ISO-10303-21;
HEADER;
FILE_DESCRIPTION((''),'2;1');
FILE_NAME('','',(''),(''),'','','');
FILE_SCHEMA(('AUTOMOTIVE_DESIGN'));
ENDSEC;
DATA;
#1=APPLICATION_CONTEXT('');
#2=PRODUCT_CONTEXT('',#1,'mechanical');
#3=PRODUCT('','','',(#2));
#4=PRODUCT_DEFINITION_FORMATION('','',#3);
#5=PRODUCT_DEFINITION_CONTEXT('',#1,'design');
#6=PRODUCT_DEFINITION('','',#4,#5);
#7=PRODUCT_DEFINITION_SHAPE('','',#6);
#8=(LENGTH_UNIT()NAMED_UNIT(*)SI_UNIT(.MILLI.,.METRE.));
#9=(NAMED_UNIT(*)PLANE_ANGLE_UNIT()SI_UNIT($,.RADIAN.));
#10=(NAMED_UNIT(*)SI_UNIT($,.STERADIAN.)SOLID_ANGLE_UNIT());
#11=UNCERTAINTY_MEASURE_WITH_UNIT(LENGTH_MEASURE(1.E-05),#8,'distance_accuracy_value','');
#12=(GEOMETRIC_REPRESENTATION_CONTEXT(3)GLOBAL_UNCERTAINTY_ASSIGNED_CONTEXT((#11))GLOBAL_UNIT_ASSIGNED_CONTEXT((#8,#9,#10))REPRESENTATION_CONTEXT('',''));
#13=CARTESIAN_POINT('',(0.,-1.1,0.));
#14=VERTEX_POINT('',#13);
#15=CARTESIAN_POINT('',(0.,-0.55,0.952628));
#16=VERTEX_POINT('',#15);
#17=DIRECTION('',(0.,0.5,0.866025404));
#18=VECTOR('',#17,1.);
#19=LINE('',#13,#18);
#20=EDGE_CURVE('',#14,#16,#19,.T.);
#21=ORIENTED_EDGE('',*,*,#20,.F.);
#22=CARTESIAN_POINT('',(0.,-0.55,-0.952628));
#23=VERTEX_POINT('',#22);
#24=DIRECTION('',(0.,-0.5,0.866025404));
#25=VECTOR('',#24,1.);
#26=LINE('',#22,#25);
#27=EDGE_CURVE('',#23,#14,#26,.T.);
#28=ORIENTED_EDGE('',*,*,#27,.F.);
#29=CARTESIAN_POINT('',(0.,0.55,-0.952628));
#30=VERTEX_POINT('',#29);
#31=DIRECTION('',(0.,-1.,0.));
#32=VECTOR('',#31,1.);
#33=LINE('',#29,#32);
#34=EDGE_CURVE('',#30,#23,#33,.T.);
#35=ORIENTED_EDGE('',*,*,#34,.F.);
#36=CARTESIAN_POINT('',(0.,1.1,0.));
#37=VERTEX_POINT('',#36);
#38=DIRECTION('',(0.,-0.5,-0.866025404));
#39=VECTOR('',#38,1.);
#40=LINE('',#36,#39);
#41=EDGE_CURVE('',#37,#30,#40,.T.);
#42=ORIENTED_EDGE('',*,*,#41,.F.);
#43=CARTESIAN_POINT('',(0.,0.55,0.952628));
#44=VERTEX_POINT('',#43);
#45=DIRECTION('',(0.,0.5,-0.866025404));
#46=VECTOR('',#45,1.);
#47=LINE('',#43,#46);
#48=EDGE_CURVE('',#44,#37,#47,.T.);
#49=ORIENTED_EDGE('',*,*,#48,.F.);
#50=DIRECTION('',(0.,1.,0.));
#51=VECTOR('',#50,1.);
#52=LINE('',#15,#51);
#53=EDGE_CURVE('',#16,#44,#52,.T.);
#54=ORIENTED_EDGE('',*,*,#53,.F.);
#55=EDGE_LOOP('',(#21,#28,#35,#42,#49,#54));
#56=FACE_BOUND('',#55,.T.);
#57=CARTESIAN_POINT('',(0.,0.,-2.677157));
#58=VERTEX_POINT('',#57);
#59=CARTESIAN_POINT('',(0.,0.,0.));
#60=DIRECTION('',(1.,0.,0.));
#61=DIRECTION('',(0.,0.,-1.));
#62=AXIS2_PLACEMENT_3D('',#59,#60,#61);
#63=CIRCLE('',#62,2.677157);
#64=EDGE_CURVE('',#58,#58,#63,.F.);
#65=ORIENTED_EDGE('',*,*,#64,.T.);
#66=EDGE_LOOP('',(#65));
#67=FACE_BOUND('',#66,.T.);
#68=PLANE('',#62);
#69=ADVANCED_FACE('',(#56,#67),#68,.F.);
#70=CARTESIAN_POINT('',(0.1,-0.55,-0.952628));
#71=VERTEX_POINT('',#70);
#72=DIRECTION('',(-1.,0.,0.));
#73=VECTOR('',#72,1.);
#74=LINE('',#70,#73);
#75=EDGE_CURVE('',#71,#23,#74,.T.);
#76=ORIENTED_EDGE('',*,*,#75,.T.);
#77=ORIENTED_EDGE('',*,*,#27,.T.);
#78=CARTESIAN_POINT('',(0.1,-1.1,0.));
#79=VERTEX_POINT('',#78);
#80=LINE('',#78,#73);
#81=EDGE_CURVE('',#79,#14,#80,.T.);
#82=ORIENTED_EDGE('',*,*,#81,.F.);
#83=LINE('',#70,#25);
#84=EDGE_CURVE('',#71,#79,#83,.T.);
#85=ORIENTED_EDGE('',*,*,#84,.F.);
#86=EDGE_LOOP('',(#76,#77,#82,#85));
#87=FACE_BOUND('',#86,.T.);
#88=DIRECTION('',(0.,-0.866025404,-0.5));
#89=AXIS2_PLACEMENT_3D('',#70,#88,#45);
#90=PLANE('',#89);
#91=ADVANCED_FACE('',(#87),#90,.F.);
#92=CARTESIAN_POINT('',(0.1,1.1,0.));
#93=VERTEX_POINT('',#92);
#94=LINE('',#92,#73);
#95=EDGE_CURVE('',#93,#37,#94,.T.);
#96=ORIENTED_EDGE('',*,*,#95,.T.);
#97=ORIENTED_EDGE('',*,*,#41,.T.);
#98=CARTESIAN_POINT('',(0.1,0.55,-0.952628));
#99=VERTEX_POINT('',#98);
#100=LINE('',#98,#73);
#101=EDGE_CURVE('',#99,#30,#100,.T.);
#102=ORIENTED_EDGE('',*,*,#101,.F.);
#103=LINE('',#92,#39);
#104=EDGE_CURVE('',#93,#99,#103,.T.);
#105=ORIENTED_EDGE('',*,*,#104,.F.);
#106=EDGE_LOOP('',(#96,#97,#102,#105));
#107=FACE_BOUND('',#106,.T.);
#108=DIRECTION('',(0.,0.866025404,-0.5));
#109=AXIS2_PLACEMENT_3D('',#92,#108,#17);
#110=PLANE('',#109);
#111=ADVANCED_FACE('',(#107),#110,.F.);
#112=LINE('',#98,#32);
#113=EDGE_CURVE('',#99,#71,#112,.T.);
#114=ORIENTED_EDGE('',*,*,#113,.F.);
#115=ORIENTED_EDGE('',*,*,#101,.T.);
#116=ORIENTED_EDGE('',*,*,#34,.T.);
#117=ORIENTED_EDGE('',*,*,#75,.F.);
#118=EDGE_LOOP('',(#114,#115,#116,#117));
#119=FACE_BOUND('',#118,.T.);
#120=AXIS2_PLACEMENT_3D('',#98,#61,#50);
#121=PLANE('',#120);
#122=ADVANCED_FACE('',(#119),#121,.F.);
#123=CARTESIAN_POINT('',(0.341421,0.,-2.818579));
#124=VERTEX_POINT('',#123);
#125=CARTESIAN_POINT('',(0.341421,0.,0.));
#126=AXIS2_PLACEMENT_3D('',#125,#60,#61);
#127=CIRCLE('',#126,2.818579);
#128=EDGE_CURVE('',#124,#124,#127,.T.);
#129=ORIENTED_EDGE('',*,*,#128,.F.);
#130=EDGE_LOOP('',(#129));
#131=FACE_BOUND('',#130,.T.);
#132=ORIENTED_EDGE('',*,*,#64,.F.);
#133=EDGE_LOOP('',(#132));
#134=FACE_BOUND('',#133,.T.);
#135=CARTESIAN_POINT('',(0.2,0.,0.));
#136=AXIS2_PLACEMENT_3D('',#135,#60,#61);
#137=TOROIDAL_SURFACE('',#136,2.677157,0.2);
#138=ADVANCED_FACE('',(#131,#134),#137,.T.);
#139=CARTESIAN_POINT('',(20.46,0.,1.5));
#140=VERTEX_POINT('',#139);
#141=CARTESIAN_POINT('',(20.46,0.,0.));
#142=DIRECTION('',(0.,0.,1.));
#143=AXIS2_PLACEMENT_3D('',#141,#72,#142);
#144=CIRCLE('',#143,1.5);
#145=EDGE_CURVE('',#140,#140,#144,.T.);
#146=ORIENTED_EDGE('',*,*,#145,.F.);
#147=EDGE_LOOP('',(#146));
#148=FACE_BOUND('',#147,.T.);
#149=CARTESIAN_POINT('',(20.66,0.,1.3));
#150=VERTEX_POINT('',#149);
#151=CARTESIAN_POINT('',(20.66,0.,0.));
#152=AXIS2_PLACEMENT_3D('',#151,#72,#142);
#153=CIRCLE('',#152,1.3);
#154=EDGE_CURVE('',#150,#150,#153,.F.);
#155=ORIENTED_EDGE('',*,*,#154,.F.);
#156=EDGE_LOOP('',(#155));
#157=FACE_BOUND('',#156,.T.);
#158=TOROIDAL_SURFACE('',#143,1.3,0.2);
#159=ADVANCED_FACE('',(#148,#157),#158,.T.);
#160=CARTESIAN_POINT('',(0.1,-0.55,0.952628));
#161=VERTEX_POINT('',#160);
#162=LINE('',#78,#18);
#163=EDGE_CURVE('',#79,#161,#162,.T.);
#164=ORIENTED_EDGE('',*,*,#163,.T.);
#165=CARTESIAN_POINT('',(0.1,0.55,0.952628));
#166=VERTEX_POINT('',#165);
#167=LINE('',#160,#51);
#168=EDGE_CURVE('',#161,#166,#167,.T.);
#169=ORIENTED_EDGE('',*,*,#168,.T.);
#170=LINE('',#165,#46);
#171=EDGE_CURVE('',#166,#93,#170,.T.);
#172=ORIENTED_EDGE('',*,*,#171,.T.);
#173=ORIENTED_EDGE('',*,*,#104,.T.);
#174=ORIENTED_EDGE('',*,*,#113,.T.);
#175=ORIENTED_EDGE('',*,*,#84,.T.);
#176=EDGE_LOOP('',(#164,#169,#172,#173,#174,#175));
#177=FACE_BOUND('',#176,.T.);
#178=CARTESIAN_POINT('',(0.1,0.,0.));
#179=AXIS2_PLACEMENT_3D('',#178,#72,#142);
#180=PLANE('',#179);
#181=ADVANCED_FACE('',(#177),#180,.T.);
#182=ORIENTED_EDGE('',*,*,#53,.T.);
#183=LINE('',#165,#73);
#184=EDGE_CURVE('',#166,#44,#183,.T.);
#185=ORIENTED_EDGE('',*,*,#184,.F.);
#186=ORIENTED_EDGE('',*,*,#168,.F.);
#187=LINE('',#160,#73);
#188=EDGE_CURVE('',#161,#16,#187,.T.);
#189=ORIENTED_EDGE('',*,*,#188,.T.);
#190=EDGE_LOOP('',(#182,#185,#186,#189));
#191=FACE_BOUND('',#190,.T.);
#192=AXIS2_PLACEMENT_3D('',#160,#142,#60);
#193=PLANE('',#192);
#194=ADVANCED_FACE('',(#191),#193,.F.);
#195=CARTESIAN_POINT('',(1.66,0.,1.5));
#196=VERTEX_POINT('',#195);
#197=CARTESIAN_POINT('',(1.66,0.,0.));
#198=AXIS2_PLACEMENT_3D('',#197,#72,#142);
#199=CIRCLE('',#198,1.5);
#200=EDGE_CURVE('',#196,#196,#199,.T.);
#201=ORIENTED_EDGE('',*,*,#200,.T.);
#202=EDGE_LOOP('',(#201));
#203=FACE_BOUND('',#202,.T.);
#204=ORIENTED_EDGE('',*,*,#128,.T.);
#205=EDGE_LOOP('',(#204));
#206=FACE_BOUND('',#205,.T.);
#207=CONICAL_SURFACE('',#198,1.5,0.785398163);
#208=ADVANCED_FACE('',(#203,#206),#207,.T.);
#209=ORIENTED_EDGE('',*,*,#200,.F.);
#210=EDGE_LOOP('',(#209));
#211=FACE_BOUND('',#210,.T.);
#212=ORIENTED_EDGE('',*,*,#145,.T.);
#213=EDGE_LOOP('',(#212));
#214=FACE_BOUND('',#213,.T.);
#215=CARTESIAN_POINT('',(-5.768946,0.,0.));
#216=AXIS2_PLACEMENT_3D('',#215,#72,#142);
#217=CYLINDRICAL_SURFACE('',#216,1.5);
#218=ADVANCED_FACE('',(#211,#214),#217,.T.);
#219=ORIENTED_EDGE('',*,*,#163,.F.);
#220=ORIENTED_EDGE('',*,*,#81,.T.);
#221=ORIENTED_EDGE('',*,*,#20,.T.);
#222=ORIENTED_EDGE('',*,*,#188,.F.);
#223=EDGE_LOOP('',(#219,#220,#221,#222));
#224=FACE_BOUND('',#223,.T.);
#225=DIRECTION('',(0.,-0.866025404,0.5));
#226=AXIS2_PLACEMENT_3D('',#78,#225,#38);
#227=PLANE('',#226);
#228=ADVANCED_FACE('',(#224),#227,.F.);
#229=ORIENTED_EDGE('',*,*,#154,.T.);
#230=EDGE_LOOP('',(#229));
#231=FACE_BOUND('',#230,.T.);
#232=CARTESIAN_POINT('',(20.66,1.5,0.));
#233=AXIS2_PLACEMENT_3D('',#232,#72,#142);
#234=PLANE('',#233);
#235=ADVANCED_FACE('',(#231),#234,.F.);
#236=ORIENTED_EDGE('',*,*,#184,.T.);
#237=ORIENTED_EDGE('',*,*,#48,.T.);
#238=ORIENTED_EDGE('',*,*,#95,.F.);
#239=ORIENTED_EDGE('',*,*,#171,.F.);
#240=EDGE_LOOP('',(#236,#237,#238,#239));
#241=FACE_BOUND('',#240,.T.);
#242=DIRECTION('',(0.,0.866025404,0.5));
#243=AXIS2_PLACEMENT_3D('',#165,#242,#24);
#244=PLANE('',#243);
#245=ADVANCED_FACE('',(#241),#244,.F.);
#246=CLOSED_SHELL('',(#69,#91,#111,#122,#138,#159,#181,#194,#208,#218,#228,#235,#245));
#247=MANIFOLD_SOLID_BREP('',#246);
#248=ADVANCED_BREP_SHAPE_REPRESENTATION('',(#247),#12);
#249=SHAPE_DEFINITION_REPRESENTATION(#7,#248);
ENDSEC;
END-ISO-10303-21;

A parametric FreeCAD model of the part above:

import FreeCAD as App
import Part
import Sketcher
Q = App.Units.Quantity


def edges_at(feature, points):
    """Names of the edges that pass closest to the given points."""
    edges = feature.Shape.Edges
    near = lambda p: min(range(len(edges)), key=lambda i: edges[i].distToShape(Part.Vertex(*p))[0])
    return sorted({f"Edge{near(p) + 1}" for p in points})

doc = App.newDocument("Part")
params = doc.addObject("Spreadsheet::Sheet", "Params")
for row, (alias, value) in enumerate([
    ("sketch1_width", "19 mm"),
    ("sketch1_height", "1.5 mm"),
    ("sketch1_width2", "20.66 mm"),
    ("revolution_angle", "360 deg"),
    ("sketch2_width", "1.1 mm"),
    ("sketch2_length", "1.1 mm"),
    ("pocket1_length", "0.1 mm"),
    ("fillet_radius", "0.2 mm"),
], start=1):
    params.set(f"A{row}", alias)
    params.set(f"B{row}", "=" + value)
    params.setAlias(f"B{row}", alias)

body = doc.addObject("PartDesign::Body", "Body")

# Sketch on XY plane
sketch1 = body.newObject("Sketcher::SketchObject", "Sketch")
sketch1.AttachmentSupport = (doc.getObject("XY_Plane"), [""])
sketch1.MapMode = "FlatFace"
sketch1.addGeometry([
    Part.LineSegment(App.Vector(0, 3.16, 0), App.Vector(0, 0, 0)),  # 0
    Part.LineSegment(App.Vector(0, 0, 0), App.Vector(20.66, 0, 0)),  # 1
    Part.LineSegment(App.Vector(20.66, 0, 0), App.Vector(20.66, 1.5, 0)),  # 2
    Part.LineSegment(App.Vector(20.66, 1.5, 0), App.Vector(1.66, 1.5, 0)),  # 3
    Part.LineSegment(App.Vector(1.66, 1.5, 0), App.Vector(0, 3.16, 0)),  # 4
], False)
sketch1.addConstraint([
    Sketcher.Constraint("Coincident", 0, 2, 1, 1),
    Sketcher.Constraint("Coincident", 1, 2, 2, 1),
    Sketcher.Constraint("Coincident", 2, 2, 3, 1),
    Sketcher.Constraint("Coincident", 3, 2, 4, 1),
    Sketcher.Constraint("Coincident", 4, 2, 0, 1),
    Sketcher.Constraint("Vertical", 0),
    Sketcher.Constraint("Horizontal", 1),
    Sketcher.Constraint("Vertical", 2),
    Sketcher.Constraint("Horizontal", 3),
    Sketcher.Constraint("Coincident", 0, 2, -1, 1),
    Sketcher.Constraint("DistanceX", 3, 2, 3, 1, Q("19 mm")),
    Sketcher.Constraint("Angle", 4, Q("135 deg")),
    Sketcher.Constraint("DistanceY", 2, 1, 2, 2, Q("1.5 mm")),
    Sketcher.Constraint("DistanceX", 1, 1, 1, 2, Q("20.66 mm")),
])
sketch1.setExpression("Constraints[10]", "Params.sketch1_width")
sketch1.setExpression("Constraints[12]", "Params.sketch1_height")
sketch1.setExpression("Constraints[13]", "Params.sketch1_width2")
revolution = body.newObject("PartDesign::Revolution", "Revolution")
revolution.Profile = sketch1
revolution.ReferenceAxis = (sketch1, ["H_Axis"])
revolution.setExpression("Angle", "Params.revolution_angle")

# Sketch on YZ plane
sketch2 = body.newObject("Sketcher::SketchObject", "Sketch001")
sketch2.AttachmentSupport = (doc.getObject("YZ_Plane"), [""])
sketch2.MapMode = "FlatFace"
sketch2.addGeometry([
    Part.LineSegment(App.Vector(-1.1, 0, 0), App.Vector(-0.55, 0.952628, 0)),  # 0
    Part.LineSegment(App.Vector(-0.55, 0.952628, 0), App.Vector(0.55, 0.952628, 0)),  # 1
    Part.LineSegment(App.Vector(0.55, 0.952628, 0), App.Vector(1.1, 0, 0)),  # 2
    Part.LineSegment(App.Vector(1.1, 0, 0), App.Vector(0.55, -0.952628, 0)),  # 3
    Part.LineSegment(App.Vector(0.55, -0.952628, 0), App.Vector(-0.55, -0.952628, 0)),  # 4
    Part.LineSegment(App.Vector(-0.55, -0.952628, 0), App.Vector(-1.1, 0, 0)),  # 5
], False)
sketch2.addConstraint([
    Sketcher.Constraint("Coincident", 0, 2, 1, 1),
    Sketcher.Constraint("Coincident", 1, 2, 2, 1),
    Sketcher.Constraint("Coincident", 2, 2, 3, 1),
    Sketcher.Constraint("Coincident", 3, 2, 4, 1),
    Sketcher.Constraint("Coincident", 4, 2, 5, 1),
    Sketcher.Constraint("Coincident", 5, 2, 0, 1),
    Sketcher.Constraint("Horizontal", 1),
    Sketcher.Constraint("Horizontal", 4),
    Sketcher.Constraint("Symmetric", 0, 2, 3, 2, -1, 1),
    Sketcher.Constraint("Symmetric", 2, 2, 5, 2, -1, 1),
    Sketcher.Constraint("PointOnObject", 2, 2, -1),
    Sketcher.Constraint("Parallel", 2, 5),
    Sketcher.Constraint("Vertical", 1, 2, 3, 2),
    Sketcher.Constraint("Angle", 0, Q("60 deg")),
    Sketcher.Constraint("DistanceX", 1, 1, 1, 2, Q("1.1 mm")),
    Sketcher.Constraint("Distance", 0, Q("1.1 mm")),
])
sketch2.setExpression("Constraints[14]", "Params.sketch2_width")
sketch2.setExpression("Constraints[15]", "Params.sketch2_length")
pocket1 = body.newObject("PartDesign::Pocket", "Pocket")
pocket1.Profile = sketch2
pocket1.setExpression("Length", "Params.pocket1_length")
pocket1.Reversed = True
doc.recompute()

fillet = body.newObject("PartDesign::Fillet", "Fillet")
fillet.Base = (pocket1, edges_at(pocket1, [(20.66, 0, -1.5), (0, 0, -3.16)]))
fillet.setExpression("Radius", "Params.fillet_radius")

doc.recompute()
